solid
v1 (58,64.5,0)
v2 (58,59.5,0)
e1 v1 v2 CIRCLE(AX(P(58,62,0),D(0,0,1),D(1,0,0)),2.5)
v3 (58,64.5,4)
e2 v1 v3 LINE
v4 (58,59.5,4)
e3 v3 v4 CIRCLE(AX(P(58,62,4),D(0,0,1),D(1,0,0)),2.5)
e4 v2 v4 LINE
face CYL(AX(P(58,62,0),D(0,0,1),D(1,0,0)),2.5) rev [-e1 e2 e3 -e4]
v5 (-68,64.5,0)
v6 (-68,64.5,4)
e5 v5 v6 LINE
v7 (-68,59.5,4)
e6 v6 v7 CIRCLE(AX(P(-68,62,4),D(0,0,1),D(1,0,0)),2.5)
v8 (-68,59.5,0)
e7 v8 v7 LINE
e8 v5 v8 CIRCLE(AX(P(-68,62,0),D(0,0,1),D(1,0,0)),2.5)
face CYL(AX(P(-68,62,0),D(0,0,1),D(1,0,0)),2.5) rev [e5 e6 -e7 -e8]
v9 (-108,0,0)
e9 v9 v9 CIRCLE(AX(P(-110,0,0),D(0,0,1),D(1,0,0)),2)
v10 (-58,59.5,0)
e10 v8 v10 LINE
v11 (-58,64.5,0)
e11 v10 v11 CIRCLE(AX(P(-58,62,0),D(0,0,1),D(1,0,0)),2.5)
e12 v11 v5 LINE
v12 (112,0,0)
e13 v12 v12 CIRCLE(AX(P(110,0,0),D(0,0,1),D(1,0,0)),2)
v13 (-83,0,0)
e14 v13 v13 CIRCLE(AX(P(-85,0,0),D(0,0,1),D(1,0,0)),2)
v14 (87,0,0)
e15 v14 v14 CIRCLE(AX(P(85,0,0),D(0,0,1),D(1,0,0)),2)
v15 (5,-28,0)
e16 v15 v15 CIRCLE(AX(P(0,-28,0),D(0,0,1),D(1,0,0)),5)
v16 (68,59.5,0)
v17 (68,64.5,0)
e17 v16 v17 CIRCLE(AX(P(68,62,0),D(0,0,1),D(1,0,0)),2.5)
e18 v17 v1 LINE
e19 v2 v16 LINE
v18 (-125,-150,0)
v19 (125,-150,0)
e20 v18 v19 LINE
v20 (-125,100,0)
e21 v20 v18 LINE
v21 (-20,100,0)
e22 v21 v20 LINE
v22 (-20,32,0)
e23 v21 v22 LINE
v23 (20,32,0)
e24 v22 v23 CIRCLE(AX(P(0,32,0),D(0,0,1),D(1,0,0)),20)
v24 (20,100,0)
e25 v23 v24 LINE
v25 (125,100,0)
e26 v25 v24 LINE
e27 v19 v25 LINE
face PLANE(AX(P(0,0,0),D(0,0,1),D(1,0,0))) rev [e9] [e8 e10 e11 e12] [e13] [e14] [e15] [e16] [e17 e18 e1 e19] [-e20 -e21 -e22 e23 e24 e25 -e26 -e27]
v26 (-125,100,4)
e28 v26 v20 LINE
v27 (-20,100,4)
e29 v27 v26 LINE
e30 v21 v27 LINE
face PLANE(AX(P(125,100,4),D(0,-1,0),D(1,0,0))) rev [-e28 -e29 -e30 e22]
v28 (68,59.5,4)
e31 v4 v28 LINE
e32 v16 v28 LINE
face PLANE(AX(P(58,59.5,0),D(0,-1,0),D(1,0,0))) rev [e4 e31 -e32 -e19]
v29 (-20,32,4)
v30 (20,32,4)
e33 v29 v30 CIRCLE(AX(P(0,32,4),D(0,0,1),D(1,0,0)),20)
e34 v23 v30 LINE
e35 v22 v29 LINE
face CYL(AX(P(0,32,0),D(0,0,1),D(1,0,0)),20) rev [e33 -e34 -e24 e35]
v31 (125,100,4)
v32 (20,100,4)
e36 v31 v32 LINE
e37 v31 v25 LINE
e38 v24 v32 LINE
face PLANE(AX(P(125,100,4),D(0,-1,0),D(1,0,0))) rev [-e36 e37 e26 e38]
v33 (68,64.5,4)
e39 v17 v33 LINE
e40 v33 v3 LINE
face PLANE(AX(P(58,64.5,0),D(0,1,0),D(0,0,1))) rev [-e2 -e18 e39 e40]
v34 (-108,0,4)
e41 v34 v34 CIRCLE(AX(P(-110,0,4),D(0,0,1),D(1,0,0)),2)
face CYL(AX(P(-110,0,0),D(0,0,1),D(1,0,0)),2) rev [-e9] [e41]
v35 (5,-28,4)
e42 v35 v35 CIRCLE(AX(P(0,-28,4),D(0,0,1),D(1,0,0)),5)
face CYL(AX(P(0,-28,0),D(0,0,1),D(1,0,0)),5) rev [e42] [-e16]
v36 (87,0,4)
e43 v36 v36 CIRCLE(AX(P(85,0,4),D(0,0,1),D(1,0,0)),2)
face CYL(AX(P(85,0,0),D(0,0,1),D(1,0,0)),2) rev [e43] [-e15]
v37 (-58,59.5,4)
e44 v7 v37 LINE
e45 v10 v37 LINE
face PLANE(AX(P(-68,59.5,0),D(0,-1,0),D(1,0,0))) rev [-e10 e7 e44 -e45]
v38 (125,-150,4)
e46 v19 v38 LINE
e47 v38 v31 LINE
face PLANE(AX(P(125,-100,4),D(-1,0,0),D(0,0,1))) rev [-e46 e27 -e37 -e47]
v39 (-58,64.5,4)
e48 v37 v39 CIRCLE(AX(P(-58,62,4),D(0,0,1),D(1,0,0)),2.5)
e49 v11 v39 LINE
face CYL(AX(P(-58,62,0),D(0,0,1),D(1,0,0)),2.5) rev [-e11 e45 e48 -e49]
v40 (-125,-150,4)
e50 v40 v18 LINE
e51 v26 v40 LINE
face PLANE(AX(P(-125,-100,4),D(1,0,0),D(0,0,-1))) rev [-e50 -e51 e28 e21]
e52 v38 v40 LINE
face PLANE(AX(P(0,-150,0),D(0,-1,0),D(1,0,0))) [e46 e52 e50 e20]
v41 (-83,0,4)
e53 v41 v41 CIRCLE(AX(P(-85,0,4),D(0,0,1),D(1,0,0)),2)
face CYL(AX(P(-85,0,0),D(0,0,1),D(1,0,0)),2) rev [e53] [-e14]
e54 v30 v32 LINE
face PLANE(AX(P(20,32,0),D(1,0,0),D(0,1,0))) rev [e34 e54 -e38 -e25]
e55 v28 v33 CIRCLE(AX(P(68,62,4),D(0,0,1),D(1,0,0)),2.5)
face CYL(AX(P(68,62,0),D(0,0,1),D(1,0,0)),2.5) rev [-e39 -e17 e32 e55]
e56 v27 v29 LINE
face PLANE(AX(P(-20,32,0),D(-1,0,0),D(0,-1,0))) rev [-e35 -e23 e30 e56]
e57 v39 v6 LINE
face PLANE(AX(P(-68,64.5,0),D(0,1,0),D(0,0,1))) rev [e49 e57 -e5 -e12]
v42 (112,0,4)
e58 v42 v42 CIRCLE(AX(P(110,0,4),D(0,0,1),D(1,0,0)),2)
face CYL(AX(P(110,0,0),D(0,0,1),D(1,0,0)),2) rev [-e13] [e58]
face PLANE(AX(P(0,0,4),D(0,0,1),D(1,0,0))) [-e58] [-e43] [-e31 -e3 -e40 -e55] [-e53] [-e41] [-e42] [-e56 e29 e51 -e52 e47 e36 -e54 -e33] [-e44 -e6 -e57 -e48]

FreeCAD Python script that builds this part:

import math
import FreeCAD as App
import Part
import Sketcher

doc = App.newDocument("Part")
params = doc.addObject("Spreadsheet::Sheet", "Params")
for row, (alias, value) in enumerate([
    ("sketch1_width", "250 mm"),
    ("sketch1_height", "200 mm"),
    ("pad1_length", "4 mm"),
    ("sketch2_diameter", "4 mm"),
    ("pocket1_length", "4 mm"),
    ("sketch3_diameter", "10 mm"),
    ("sketch3_radius", "20 mm"),
    ("sketch3_radius2", "2.5 mm"),
    ("sketch3_width", "10 mm"),
    ("sketch3_height", "68 mm"),
    ("pocket2_length", "4 mm"),
    ("sketch4_width", "250 mm"),
    ("sketch4_height", "4 mm"),
    ("pad2_length", "50 mm"),
], start=1):
    params.set(f"A{row}", alias)
    params.set(f"B{row}", "=" + value)
    params.setAlias(f"B{row}", alias)

body = doc.addObject("PartDesign::Body", "Body")

sketch1 = body.newObject("Sketcher::SketchObject", "Sketch")
sketch1.AttachmentSupport = (doc.getObject("XY_Plane"), [""])
sketch1.MapMode = "FlatFace"
sketch1.addGeometry(Part.LineSegment(App.Vector(-125, 100, 0), App.Vector(-125, -100, 0)), False)
sketch1.addGeometry(Part.LineSegment(App.Vector(-125, -100, 0), App.Vector(125, -100, 0)), False)
sketch1.addGeometry(Part.LineSegment(App.Vector(125, -100, 0), App.Vector(125, 100, 0)), False)
sketch1.addGeometry(Part.LineSegment(App.Vector(125, 100, 0), App.Vector(-125, 100, 0)), False)
sketch1.addConstraint(Sketcher.Constraint("Coincident", 0, 2, 1, 1))
sketch1.addConstraint(Sketcher.Constraint("Coincident", 1, 2, 2, 1))
sketch1.addConstraint(Sketcher.Constraint("Coincident", 2, 2, 3, 1))
sketch1.addConstraint(Sketcher.Constraint("Coincident", 3, 2, 0, 1))
sketch1.addConstraint(Sketcher.Constraint("Vertical", 0))
sketch1.addConstraint(Sketcher.Constraint("Horizontal", 1))
sketch1.addConstraint(Sketcher.Constraint("Vertical", 2))
sketch1.addConstraint(Sketcher.Constraint("Horizontal", 3))
sketch1.addConstraint(Sketcher.Constraint("Symmetric", 0, 2, 2, 2, -1, 1))
sketch1.addConstraint(Sketcher.Constraint("DistanceX", 1, 1, 1, 2, 250.0))
sketch1.addConstraint(Sketcher.Constraint("DistanceY", 0, 2, 0, 1, 200.0))
sketch1.setExpression("Constraints[9]", "Params.sketch1_width")
sketch1.setExpression("Constraints[10]", "Params.sketch1_height")
pad1 = body.newObject("PartDesign::Pad", "Pad")
pad1.Profile = sketch1
pad1.setExpression("Length", "Params.pad1_length")

sketch2 = body.newObject("Sketcher::SketchObject", "Sketch001")
sketch2.AttachmentSupport = (doc.getObject("XY_Plane"), [""])
sketch2.MapMode = "FlatFace"
sketch2.AttachmentOffset = App.Placement(App.Vector(0, 0, 4), App.Rotation())
sketch2.addGeometry(Part.Circle(App.Vector(-110, 0, 0), App.Vector(0, 0, 1), 2), False)
sketch2.addGeometry(Part.Circle(App.Vector(-85, 0, 0), App.Vector(0, 0, 1), 2), False)
sketch2.addGeometry(Part.Circle(App.Vector(110, 0, 0), App.Vector(0, 0, 1), 2), False)
sketch2.addGeometry(Part.Circle(App.Vector(85, 0, 0), App.Vector(0, 0, 1), 2), False)
sketch2.addConstraint(Sketcher.Constraint("Equal", 0, 1))
sketch2.addConstraint(Sketcher.Constraint("Equal", 1, 2))
sketch2.addConstraint(Sketcher.Constraint("Equal", 2, 3))
sketch2.addConstraint(Sketcher.Constraint("Symmetric", 0, 3, 2, 3, -1, 1))
sketch2.addConstraint(Sketcher.Constraint("Symmetric", 1, 3, 3, 3, -1, 1))
sketch2.addConstraint(Sketcher.Constraint("PointOnObject", 0, 3, -1))
sketch2.addConstraint(Sketcher.Constraint("PointOnObject", 1, 3, -1))
sketch2.addConstraint(Sketcher.Constraint("Diameter", 0, 4.0))
sketch2.addConstraint(Sketcher.Constraint("DistanceX", 0, 3, -1, 1, 110.0))
sketch2.addConstraint(Sketcher.Constraint("DistanceX", 1, 3, -1, 1, 85.0))
sketch2.setExpression("Constraints[7]", "Params.sketch2_diameter")
pocket1 = body.newObject("PartDesign::Pocket", "Pocket")
pocket1.Profile = sketch2
pocket1.setExpression("Length", "Params.pocket1_length")

sketch3 = body.newObject("Sketcher::SketchObject", "Sketch002")
sketch3.AttachmentSupport = (doc.getObject("XY_Plane"), [""])
sketch3.MapMode = "FlatFace"
sketch3.AttachmentOffset = App.Placement(App.Vector(0, 0, 4), App.Rotation())
sketch3.addGeometry(Part.Circle(App.Vector(0, -28, 0), App.Vector(0, 0, 1), 5), False)
sketch3.addGeometry(Part.LineSegment(App.Vector(20, 32, 0), App.Vector(20, 100, 0)), False)
sketch3.addGeometry(Part.LineSegment(App.Vector(20, 100, 0), App.Vector(-20, 100, 0)), False)
sketch3.addGeometry(Part.LineSegment(App.Vector(-20, 100, 0), App.Vector(-20, 32, 0)), False)
sketch3.addGeometry(Part.ArcOfCircle(Part.Circle(App.Vector(0, 32, 0), App.Vector(0, 0, 1), 20), math.radians(180), math.radians(360)), False)
sketch3.addGeometry(Part.LineSegment(App.Vector(-58, 64.5, 0), App.Vector(-68, 64.5, 0)), False)
sketch3.addGeometry(Part.ArcOfCircle(Part.Circle(App.Vector(-68, 62, 0), App.Vector(0, 0, 1), 2.5), math.radians(90), math.radians(270)), False)
sketch3.addGeometry(Part.LineSegment(App.Vector(-68, 59.5, 0), App.Vector(-58, 59.5, 0)), False)
sketch3.addGeometry(Part.ArcOfCircle(Part.Circle(App.Vector(-58, 62, 0), App.Vector(0, 0, 1), 2.5), math.radians(-90), math.radians(90)), False)
sketch3.addGeometry(Part.LineSegment(App.Vector(58, 59.5, 0), App.Vector(68, 59.5, 0)), False)
sketch3.addGeometry(Part.ArcOfCircle(Part.Circle(App.Vector(68, 62, 0), App.Vector(0, 0, 1), 2.5), math.radians(-90), math.radians(90)), False)
sketch3.addGeometry(Part.LineSegment(App.Vector(68, 64.5, 0), App.Vector(58, 64.5, 0)), False)
sketch3.addGeometry(Part.ArcOfCircle(Part.Circle(App.Vector(58, 62, 0), App.Vector(0, 0, 1), 2.5), math.radians(90), math.radians(270)), False)
sketch3.addConstraint(Sketcher.Constraint("Coincident", 1, 2, 2, 1))
sketch3.addConstraint(Sketcher.Constraint("Coincident", 2, 2, 3, 1))
sketch3.addConstraint(Sketcher.Constraint("Tangent", 3, 2, 4, 1))
sketch3.addConstraint(Sketcher.Constraint("Tangent", 4, 2, 1, 1))
sketch3.addConstraint(Sketcher.Constraint("Tangent", 5, 2, 6, 1))
sketch3.addConstraint(Sketcher.Constraint("Tangent", 6, 2, 7, 1))
sketch3.addConstraint(Sketcher.Constraint("Tangent", 7, 2, 8, 1))
sketch3.addConstraint(Sketcher.Constraint("Tangent", 8, 2, 5, 1))
sketch3.addConstraint(Sketcher.Constraint("Tangent", 9, 2, 10, 1))
sketch3.addConstraint(Sketcher.Constraint("Tangent", 10, 2, 11, 1))
sketch3.addConstraint(Sketcher.Constraint("Tangent", 11, 2, 12, 1))
sketch3.addConstraint(Sketcher.Constraint("Tangent", 12, 2, 9, 1))
sketch3.addConstraint(Sketcher.Constraint("Vertical", 1))
sketch3.addConstraint(Sketcher.Constraint("Horizontal", 2))
sketch3.addConstraint(Sketcher.Constraint("Vertical", 3))
sketch3.addConstraint(Sketcher.Constraint("Horizontal", 5))
sketch3.addConstraint(Sketcher.Constraint("Horizontal", 7))
sketch3.addConstraint(Sketcher.Constraint("Horizontal", 9))
sketch3.addConstraint(Sketcher.Constraint("Horizontal", 11))
sketch3.addConstraint(Sketcher.Constraint("Equal", 8, 10))
sketch3.addConstraint(Sketcher.Constraint("Symmetric", 6, 3, 10, 3, -2))
sketch3.addConstraint(Sketcher.Constraint("PointOnObject", 0, 3, -2))
sketch3.addConstraint(Sketcher.Constraint("PointOnObject", 4, 3, -2))
sketch3.addConstraint(Sketcher.Constraint("Equal", 7, 9))
sketch3.addConstraint(Sketcher.Constraint("Diameter", 0, 10.0))
sketch3.addConstraint(Sketcher.Constraint("Radius", 4, 20.0))
sketch3.addConstraint(Sketcher.Constraint("Radius", 6, 2.5))
sketch3.addConstraint(Sketcher.Constraint("DistanceX", 5, 2, 5, 1, 10.0))
sketch3.addConstraint(Sketcher.Constraint("DistanceY", 1, 1, 1, 2, 68.0))
sketch3.addConstraint(Sketcher.Constraint("DistanceY", 0, 3, -1, 1, 28.0))
sketch3.addConstraint(Sketcher.Constraint("DistanceY", -1, 1, 4, 3, 32.0))
sketch3.addConstraint(Sketcher.Constraint("DistanceX", 6, 3, -1, 1, 68.0))
sketch3.addConstraint(Sketcher.Constraint("DistanceY", -1, 1, 6, 3, 62.0))
sketch3.setExpression("Constraints[24]", "Params.sketch3_diameter")
sketch3.setExpression("Constraints[25]", "Params.sketch3_radius")
sketch3.setExpression("Constraints[26]", "Params.sketch3_radius2")
sketch3.setExpression("Constraints[27]", "Params.sketch3_width")
sketch3.setExpression("Constraints[28]", "Params.sketch3_height")
pocket2 = body.newObject("PartDesign::Pocket", "Pocket001")
pocket2.Profile = sketch3
pocket2.setExpression("Length", "Params.pocket2_length")

sketch4 = body.newObject("Sketcher::SketchObject", "Sketch003")
sketch4.AttachmentSupport = (doc.getObject("XZ_Plane"), [""])
sketch4.MapMode = "FlatFace"
sketch4.AttachmentOffset = App.Placement(App.Vector(0, 0, 100), App.Rotation())
sketch4.addGeometry(Part.LineSegment(App.Vector(-125, 4, 0), App.Vector(-125, 0, 0)), False)
sketch4.addGeometry(Part.LineSegment(App.Vector(-125, 0, 0), App.Vector(125, 0, 0)), False)
sketch4.addGeometry(Part.LineSegment(App.Vector(125, 0, 0), App.Vector(125, 4, 0)), False)
sketch4.addGeometry(Part.LineSegment(App.Vector(125, 4, 0), App.Vector(-125, 4, 0)), False)
sketch4.addConstraint(Sketcher.Constraint("Coincident", 0, 2, 1, 1))
sketch4.addConstraint(Sketcher.Constraint("Coincident", 1, 2, 2, 1))
sketch4.addConstraint(Sketcher.Constraint("Coincident", 2, 2, 3, 1))
sketch4.addConstraint(Sketcher.Constraint("Coincident", 3, 2, 0, 1))
sketch4.addConstraint(Sketcher.Constraint("Vertical", 0))
sketch4.addConstraint(Sketcher.Constraint("Horizontal", 1))
sketch4.addConstraint(Sketcher.Constraint("Vertical", 2))
sketch4.addConstraint(Sketcher.Constraint("Horizontal", 3))
sketch4.addConstraint(Sketcher.Constraint("Symmetric", 0, 2, 1, 2, -1, 1))
sketch4.addConstraint(Sketcher.Constraint("DistanceX", 1, 1, 1, 2, 250.0))
sketch4.addConstraint(Sketcher.Constraint("DistanceY", 0, 2, 0, 1, 4.0))
sketch4.setExpression("Constraints[9]", "Params.sketch4_width")
sketch4.setExpression("Constraints[10]", "Params.sketch4_height")
pad2 = body.newObject("PartDesign::Pad", "Pad001")
pad2.Profile = sketch4
pad2.setExpression("Length", "Params.pad2_length")

doc.recompute()
